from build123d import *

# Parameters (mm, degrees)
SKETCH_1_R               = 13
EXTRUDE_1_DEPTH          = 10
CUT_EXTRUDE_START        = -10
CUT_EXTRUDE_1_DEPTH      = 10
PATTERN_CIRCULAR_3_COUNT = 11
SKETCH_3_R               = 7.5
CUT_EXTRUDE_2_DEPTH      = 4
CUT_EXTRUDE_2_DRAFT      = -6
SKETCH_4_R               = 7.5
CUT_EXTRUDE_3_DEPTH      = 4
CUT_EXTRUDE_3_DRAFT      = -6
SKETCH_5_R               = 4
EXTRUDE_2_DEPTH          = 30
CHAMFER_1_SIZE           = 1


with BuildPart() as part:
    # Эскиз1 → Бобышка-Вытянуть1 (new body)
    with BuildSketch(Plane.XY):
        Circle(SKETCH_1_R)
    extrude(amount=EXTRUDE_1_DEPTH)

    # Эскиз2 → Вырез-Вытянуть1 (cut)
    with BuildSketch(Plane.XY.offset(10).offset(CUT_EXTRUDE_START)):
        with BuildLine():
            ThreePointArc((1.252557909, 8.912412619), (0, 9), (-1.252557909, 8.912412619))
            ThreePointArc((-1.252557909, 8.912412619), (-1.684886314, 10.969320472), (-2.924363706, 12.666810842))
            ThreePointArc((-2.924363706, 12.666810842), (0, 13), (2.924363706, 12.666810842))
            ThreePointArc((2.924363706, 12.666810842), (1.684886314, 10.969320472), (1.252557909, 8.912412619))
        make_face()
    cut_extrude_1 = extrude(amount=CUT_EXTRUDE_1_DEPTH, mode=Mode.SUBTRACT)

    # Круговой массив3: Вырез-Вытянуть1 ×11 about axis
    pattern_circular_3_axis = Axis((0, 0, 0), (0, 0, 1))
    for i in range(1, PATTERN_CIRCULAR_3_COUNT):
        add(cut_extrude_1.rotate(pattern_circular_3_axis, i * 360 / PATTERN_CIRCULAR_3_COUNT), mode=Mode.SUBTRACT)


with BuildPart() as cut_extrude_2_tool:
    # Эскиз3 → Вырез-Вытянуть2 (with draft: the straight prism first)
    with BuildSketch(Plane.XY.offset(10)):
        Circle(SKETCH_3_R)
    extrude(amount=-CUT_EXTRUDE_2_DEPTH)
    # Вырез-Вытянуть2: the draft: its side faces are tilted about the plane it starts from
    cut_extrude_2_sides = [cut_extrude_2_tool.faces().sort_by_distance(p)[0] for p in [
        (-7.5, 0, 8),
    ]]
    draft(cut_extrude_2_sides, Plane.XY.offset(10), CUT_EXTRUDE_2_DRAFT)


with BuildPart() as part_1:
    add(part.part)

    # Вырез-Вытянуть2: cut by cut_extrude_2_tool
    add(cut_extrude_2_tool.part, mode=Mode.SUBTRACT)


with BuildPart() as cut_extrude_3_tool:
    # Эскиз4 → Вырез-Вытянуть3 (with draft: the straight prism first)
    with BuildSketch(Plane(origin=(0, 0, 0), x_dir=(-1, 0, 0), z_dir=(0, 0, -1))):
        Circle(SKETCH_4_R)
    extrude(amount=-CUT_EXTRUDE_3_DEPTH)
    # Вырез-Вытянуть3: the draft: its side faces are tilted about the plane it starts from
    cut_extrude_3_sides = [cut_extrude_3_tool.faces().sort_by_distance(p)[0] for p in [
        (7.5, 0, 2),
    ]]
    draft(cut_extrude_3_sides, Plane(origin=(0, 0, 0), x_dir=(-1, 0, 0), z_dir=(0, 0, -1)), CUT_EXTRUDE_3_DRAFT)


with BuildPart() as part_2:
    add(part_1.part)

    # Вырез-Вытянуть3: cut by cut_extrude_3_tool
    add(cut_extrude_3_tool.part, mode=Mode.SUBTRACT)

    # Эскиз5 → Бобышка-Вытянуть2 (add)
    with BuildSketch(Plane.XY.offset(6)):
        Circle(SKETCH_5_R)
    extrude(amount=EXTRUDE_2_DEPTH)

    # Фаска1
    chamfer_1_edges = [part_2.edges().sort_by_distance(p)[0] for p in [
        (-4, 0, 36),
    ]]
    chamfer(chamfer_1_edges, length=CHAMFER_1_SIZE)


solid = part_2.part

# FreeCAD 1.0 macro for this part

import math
import FreeCAD as App
import Part
import Sketcher

V = App.Vector
Q = App.Units.Quantity


def edges_at(feature, points):
    """Names of the edges that pass closest to the given points."""
    edges = feature.Shape.Edges
    near = lambda p: min(range(len(edges)), key=lambda i: edges[i].distToShape(Part.Vertex(*p))[0])
    return sorted({f"Edge{near(p) + 1}" for p in points})


def faces_at(feature, points):
    """Names of the faces that lie closest to the given points."""
    faces = feature.Shape.Faces
    near = lambda p: min(range(len(faces)), key=lambda i: faces[i].distToShape(Part.Vertex(*p))[0])
    return sorted({f"Face{near(p) + 1}" for p in points})

doc = App.newDocument("Part")
body = doc.addObject("PartDesign::Body", "Body")

# Sketch on XY plane
sketch1 = body.newObject("Sketcher::SketchObject", "Sketch")
sketch1.AttachmentSupport = (doc.getObject("XY_Plane"), [""])
sketch1.MapMode = "FlatFace"
sketch1.addGeometry(Part.Circle(V(0, 0, 0), V(0, 0, 1), 13), False)
sketch1.addConstraint(Sketcher.Constraint("Coincident", 0, 3, -1, 1))
sketch1.addConstraint(Sketcher.Constraint("Diameter", 0, Q("26 mm")))
pad1 = body.newObject("PartDesign::Pad", "Pad")
pad1.Profile = sketch1
pad1.Length = 10

# Sketch on XY plane
sketch2 = body.newObject("Sketcher::SketchObject", "Sketch001")
sketch2.AttachmentSupport = (doc.getObject("XY_Plane"), [""])
sketch2.MapMode = "FlatFace"
sketch2.addGeometry(Part.ArcOfCircle(Part.Circle(V(0, 0, 0), V(0, 0, 1), 9), math.radians(82), math.radians(98)), False)
sketch2.addGeometry(Part.ArcOfCircle(Part.Circle(V(6.3, 8.9, 0), V(0, 0, 1), 5), math.radians(132), math.radians(180)), False)
sketch2.addGeometry(Part.ArcOfCircle(Part.Circle(V(0, 0, 0), V(0, 0, 1), 13), math.radians(77), math.radians(103)), False)
sketch2.addGeometry(Part.ArcOfCircle(Part.Circle(V(-6.3, 8.9, 0), V(0, 0, 1), 5), math.radians(0), math.radians(48)), False)
sketch2.addConstraint(Sketcher.Constraint("Coincident", 0, 1, 1, 2))
sketch2.addConstraint(Sketcher.Constraint("Coincident", 1, 1, 2, 1))
sketch2.addConstraint(Sketcher.Constraint("Coincident", 2, 2, 3, 2))
sketch2.addConstraint(Sketcher.Constraint("Coincident", 3, 1, 0, 2))
sketch2.addConstraint(Sketcher.Constraint("Coincident", 0, 3, -1, 1))
sketch2.addConstraint(Sketcher.Constraint("Coincident", 2, 3, -1, 1))
sketch2.addConstraint(Sketcher.Constraint("Equal", 1, 3))
sketch2.addConstraint(Sketcher.Constraint("Symmetric", 1, 3, 3, 3, -2))
sketch2.addConstraint(Sketcher.Constraint("Radius", 0, Q("9 mm")))
sketch2.addConstraint(Sketcher.Constraint("Radius", 1, Q("5 mm")))
sketch2.addConstraint(Sketcher.Constraint("Radius", 2, Q("13 mm")))
sketch2.addConstraint(Sketcher.Constraint("DistanceY", 0, 1, 1, 1, Q("3.754398 mm")))
sketch2.addConstraint(Sketcher.Constraint("DistanceY", -1, 1, 1, 1, Q("12.666811 mm")))
pocket1 = body.newObject("PartDesign::Pocket", "Pocket")
pocket1.Profile = sketch2
pocket1.Length = 10
pocket1.Reversed = True
doc.recompute()

polarpattern = body.newObject("PartDesign::PolarPattern", "PolarPattern")
polarpattern.Originals = [pocket1]
polarpattern.Axis = (doc.getObject("Z_Axis"), [""])
polarpattern.Angle = 360
polarpattern.Occurrences = 11
body.Tip = polarpattern
body2 = doc.addObject("PartDesign::Body", "Body001")

# Sketch on XY plane
sketch3 = body2.newObject("Sketcher::SketchObject", "Sketch002")
sketch3.AttachmentSupport = (doc.getObject("XY_Plane001"), [""])
sketch3.MapMode = "FlatFace"
sketch3.AttachmentOffset = App.Placement(V(0, 0, 10), App.Rotation())
sketch3.addGeometry(Part.Circle(V(0, 0, 0), V(0, 0, 1), 8), False)
sketch3.addConstraint(Sketcher.Constraint("Coincident", 0, 3, -1, 1))
sketch3.addConstraint(Sketcher.Constraint("Diameter", 0, Q("15 mm")))
pad2 = body2.newObject("PartDesign::Pad", "Pad001")
pad2.Profile = sketch3
pad2.Length = 4
pad2.Reversed = True
doc.recompute()

datumplane = body2.newObject("PartDesign::Plane", "DatumPlane")
datumplane.AttachmentSupport = (doc.getObject("XY_Plane001"), [""])
datumplane.MapMode = "FlatFace"
datumplane.AttachmentOffset = App.Placement(V(0, 0, 10), App.Rotation())
draft = body2.newObject("PartDesign::Draft", "Draft")
draft.Base = (pad2, faces_at(pad2, [(-7.5, 0, 8)]))
draft.NeutralPlane = (datumplane, [""])
draft.Angle = 6
draft.Reversed = True
doc.recompute()

boolean = body.newObject("PartDesign::Boolean", "Boolean")
boolean.Type = "Cut"
boolean.addObjects([body2])
body3 = doc.addObject("PartDesign::Body", "Body002")

# Sketch on XY plane
sketch4 = body3.newObject("Sketcher::SketchObject", "Sketch003")
sketch4.AttachmentSupport = (doc.getObject("XY_Plane002"), [""])
sketch4.MapMode = "FlatFace"
sketch4.addGeometry(Part.Circle(V(0, 0, 0), V(0, 0, 1), 8), False)
sketch4.addConstraint(Sketcher.Constraint("Coincident", 0, 3, -1, 1))
sketch4.addConstraint(Sketcher.Constraint("Diameter", 0, Q("15 mm")))
pad3 = body3.newObject("PartDesign::Pad", "Pad002")
pad3.Profile = sketch4
pad3.Length = 4
doc.recompute()

draft2 = body3.newObject("PartDesign::Draft", "Draft001")
draft2.Base = (pad3, faces_at(pad3, [(7.5, 0, 2)]))
draft2.NeutralPlane = (doc.getObject("XY_Plane002"), [""])
draft2.Angle = 6
draft2.Reversed = False
doc.recompute()

boolean2 = body.newObject("PartDesign::Boolean", "Boolean001")
boolean2.Type = "Cut"
boolean2.addObjects([body3])

# Sketch on XY plane
sketch5 = body.newObject("Sketcher::SketchObject", "Sketch004")
sketch5.AttachmentSupport = (doc.getObject("XY_Plane"), [""])
sketch5.MapMode = "FlatFace"
sketch5.AttachmentOffset = App.Placement(V(0, 0, 6), App.Rotation())
sketch5.addGeometry(Part.Circle(V(0, 0, 0), V(0, 0, 1), 4), False)
sketch5.addConstraint(Sketcher.Constraint("Coincident", 0, 3, -1, 1))
sketch5.addConstraint(Sketcher.Constraint("Diameter", 0, Q("8 mm")))
pad4 = body.newObject("PartDesign::Pad", "Pad003")
pad4.Profile = sketch5
pad4.Length = 30
doc.recompute()

chamfer = body.newObject("PartDesign::Chamfer", "Chamfer")
chamfer.Base = (pad4, edges_at(pad4, [(-4, 0, 36)]))
chamfer.Size = 1

doc.recompute()
